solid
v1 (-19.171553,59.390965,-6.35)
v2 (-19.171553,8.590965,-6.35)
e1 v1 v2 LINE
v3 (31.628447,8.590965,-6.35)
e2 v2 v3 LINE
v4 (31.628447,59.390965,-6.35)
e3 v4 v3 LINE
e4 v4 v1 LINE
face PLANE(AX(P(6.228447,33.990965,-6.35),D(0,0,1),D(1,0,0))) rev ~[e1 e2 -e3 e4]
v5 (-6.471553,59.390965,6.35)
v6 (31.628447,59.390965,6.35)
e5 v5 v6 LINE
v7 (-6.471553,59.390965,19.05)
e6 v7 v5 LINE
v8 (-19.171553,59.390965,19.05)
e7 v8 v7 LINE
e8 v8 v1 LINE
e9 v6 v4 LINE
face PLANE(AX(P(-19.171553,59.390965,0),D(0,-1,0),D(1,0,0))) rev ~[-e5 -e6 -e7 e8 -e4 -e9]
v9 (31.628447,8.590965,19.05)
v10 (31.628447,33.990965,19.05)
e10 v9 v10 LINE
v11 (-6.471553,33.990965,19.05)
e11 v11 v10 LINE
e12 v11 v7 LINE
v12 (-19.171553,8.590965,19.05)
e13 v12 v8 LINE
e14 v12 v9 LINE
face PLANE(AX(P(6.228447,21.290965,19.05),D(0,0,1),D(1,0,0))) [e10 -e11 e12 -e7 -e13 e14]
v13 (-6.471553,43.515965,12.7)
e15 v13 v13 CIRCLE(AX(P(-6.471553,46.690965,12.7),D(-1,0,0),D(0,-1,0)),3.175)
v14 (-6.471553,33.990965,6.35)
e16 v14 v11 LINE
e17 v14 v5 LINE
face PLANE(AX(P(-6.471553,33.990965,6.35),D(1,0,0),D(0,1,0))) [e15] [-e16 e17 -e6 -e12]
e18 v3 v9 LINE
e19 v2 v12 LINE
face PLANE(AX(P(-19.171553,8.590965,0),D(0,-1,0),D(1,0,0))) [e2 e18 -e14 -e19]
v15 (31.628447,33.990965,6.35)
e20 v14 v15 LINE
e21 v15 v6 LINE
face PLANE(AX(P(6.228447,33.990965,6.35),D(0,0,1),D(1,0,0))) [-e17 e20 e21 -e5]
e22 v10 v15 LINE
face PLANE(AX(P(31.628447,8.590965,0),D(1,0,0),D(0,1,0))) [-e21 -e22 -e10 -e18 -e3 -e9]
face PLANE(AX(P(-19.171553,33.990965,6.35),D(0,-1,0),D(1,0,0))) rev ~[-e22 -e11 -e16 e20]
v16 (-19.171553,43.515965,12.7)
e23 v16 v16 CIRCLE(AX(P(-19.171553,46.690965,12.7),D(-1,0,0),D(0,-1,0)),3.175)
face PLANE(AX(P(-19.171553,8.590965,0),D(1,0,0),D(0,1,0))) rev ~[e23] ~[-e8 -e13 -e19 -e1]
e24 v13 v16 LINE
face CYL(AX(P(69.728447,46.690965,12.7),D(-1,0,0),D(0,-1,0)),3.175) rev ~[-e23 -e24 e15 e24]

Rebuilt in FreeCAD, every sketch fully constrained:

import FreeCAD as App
import Part
import Sketcher

V = App.Vector
Q = App.Units.Quantity


def add_polygon(sketch, points):
    """Adds a closed chain of lines whose ends are joined by coincident constraints."""
    first, n = sketch.GeometryCount, len(points)
    for a, b in zip(points, points[1:] + points[:1]):
        sketch.addGeometry(Part.LineSegment(App.Vector(*a, 0), App.Vector(*b, 0)), False)
    for i in range(n):
        sketch.addConstraint(Sketcher.Constraint("Coincident", first + i, 2, first + (i + 1) % n, 1))

doc = App.newDocument("Part")
body = doc.addObject("PartDesign::Body", "Body")

# Sketch on XY plane
sketch1 = body.newObject("Sketcher::SketchObject", "Sketch")
sketch1.AttachmentSupport = (doc.getObject("XY_Plane"), [""])
sketch1.MapMode = "FlatFace"
add_polygon(sketch1, [(-19, 59), (-19, 9), (32, 9), (32, 59)])  # lines 0-3
sketch1.addConstraint(Sketcher.Constraint("Vertical", 0))
sketch1.addConstraint(Sketcher.Constraint("Horizontal", 1))
sketch1.addConstraint(Sketcher.Constraint("Vertical", 2))
sketch1.addConstraint(Sketcher.Constraint("Horizontal", 3))
sketch1.addConstraint(Sketcher.Constraint("Equal", 3, 0))
sketch1.addConstraint(Sketcher.Constraint("DistanceX", 1, 1, 1, 2, Q("2 in")))
sketch1.addConstraint(Sketcher.Constraint("DistanceX", 0, 2, -1, 1, 19.171553))
sketch1.addConstraint(Sketcher.Constraint("DistanceY", -1, 1, 0, 2, 8.590965))
pad1 = body.newObject("PartDesign::Pad", "Pad")
pad1.Profile = sketch1
pad1.Length = Q("0.5 in")
pad1.Midplane = True

# Sketch on XY plane
sketch2 = body.newObject("Sketcher::SketchObject", "Sketch001")
sketch2.AttachmentSupport = (doc.getObject("XY_Plane"), [""])
sketch2.MapMode = "FlatFace"
sketch2.AttachmentOffset = App.Placement(V(0, 0, 0.25 * 25.4), App.Rotation())
add_polygon(sketch2, [(-19, 34), (-19, 9), (32, 9), (32, 34)])  # lines 0-3
sketch2.addConstraint(Sketcher.Constraint("Vertical", 0))
sketch2.addConstraint(Sketcher.Constraint("Horizontal", 1))
sketch2.addConstraint(Sketcher.Constraint("Vertical", 2))
sketch2.addConstraint(Sketcher.Constraint("Horizontal", 3))
sketch2.addConstraint(Sketcher.Constraint("DistanceX", 1, 1, 1, 2, Q("2 in")))
sketch2.addConstraint(Sketcher.Constraint("DistanceY", 0, 2, 0, 1, Q("1 in")))
sketch2.addConstraint(Sketcher.Constraint("DistanceX", 0, 2, -1, 1, 19.171553))
sketch2.addConstraint(Sketcher.Constraint("DistanceY", -1, 1, 0, 2, 8.590965))
pad2 = body.newObject("PartDesign::Pad", "Pad001")
pad2.Profile = sketch2
pad2.Length = Q("1 in")
pad2.Midplane = True

# Sketch on XY plane
sketch3 = body.newObject("Sketcher::SketchObject", "Sketch002")
sketch3.AttachmentSupport = (doc.getObject("XY_Plane"), [""])
sketch3.MapMode = "FlatFace"
sketch3.AttachmentOffset = App.Placement(V(0, 0, 0.25 * 25.4), App.Rotation())
add_polygon(sketch3, [(-19, 59), (-19, 34), (-6, 34), (-6, 59)])  # lines 0-3
sketch3.addConstraint(Sketcher.Constraint("Vertical", 0))
sketch3.addConstraint(Sketcher.Constraint("Horizontal", 1))
sketch3.addConstraint(Sketcher.Constraint("Vertical", 2))
sketch3.addConstraint(Sketcher.Constraint("Horizontal", 3))
sketch3.addConstraint(Sketcher.Constraint("DistanceY", 0, 2, 0, 1, Q("1 in")))
sketch3.addConstraint(Sketcher.Constraint("DistanceX", 1, 1, 1, 2, Q("0.5 in")))
sketch3.addConstraint(Sketcher.Constraint("DistanceX", 0, 2, -1, 1, 19.171553))
sketch3.addConstraint(Sketcher.Constraint("DistanceY", -1, 1, 0, 2, 33.990965))
pad3 = body.newObject("PartDesign::Pad", "Pad002")
pad3.Profile = sketch3
pad3.Length = Q("1 in")
pad3.Midplane = True

# Sketch on YZ plane
sketch4 = body.newObject("Sketcher::SketchObject", "Sketch003")
sketch4.AttachmentSupport = (doc.getObject("YZ_Plane"), [""])
sketch4.MapMode = "FlatFace"
sketch4.AttachmentOffset = App.Placement(V(0, 0, -6.471553), App.Rotation())
sketch4.addGeometry(Part.Circle(V(46.7, 12.7, 0), V(0, 0, 1), 3.2), False)
sketch4.addConstraint(Sketcher.Constraint("Diameter", 0, Q("0.25 in")))
sketch4.addConstraint(Sketcher.Constraint("DistanceY", -1, 1, 0, 3, Q("0.5 in")))
sketch4.addConstraint(Sketcher.Constraint("DistanceX", -1, 1, 0, 3, 46.690965))
doc.recompute()
hole = body.newObject("PartDesign::Hole", "Hole")
hole.Profile = sketch4
hole.ThreadType = "None"
hole.Diameter = Q("0.25 in")
hole.DepthType = "ThroughAll"

doc.recompute()
